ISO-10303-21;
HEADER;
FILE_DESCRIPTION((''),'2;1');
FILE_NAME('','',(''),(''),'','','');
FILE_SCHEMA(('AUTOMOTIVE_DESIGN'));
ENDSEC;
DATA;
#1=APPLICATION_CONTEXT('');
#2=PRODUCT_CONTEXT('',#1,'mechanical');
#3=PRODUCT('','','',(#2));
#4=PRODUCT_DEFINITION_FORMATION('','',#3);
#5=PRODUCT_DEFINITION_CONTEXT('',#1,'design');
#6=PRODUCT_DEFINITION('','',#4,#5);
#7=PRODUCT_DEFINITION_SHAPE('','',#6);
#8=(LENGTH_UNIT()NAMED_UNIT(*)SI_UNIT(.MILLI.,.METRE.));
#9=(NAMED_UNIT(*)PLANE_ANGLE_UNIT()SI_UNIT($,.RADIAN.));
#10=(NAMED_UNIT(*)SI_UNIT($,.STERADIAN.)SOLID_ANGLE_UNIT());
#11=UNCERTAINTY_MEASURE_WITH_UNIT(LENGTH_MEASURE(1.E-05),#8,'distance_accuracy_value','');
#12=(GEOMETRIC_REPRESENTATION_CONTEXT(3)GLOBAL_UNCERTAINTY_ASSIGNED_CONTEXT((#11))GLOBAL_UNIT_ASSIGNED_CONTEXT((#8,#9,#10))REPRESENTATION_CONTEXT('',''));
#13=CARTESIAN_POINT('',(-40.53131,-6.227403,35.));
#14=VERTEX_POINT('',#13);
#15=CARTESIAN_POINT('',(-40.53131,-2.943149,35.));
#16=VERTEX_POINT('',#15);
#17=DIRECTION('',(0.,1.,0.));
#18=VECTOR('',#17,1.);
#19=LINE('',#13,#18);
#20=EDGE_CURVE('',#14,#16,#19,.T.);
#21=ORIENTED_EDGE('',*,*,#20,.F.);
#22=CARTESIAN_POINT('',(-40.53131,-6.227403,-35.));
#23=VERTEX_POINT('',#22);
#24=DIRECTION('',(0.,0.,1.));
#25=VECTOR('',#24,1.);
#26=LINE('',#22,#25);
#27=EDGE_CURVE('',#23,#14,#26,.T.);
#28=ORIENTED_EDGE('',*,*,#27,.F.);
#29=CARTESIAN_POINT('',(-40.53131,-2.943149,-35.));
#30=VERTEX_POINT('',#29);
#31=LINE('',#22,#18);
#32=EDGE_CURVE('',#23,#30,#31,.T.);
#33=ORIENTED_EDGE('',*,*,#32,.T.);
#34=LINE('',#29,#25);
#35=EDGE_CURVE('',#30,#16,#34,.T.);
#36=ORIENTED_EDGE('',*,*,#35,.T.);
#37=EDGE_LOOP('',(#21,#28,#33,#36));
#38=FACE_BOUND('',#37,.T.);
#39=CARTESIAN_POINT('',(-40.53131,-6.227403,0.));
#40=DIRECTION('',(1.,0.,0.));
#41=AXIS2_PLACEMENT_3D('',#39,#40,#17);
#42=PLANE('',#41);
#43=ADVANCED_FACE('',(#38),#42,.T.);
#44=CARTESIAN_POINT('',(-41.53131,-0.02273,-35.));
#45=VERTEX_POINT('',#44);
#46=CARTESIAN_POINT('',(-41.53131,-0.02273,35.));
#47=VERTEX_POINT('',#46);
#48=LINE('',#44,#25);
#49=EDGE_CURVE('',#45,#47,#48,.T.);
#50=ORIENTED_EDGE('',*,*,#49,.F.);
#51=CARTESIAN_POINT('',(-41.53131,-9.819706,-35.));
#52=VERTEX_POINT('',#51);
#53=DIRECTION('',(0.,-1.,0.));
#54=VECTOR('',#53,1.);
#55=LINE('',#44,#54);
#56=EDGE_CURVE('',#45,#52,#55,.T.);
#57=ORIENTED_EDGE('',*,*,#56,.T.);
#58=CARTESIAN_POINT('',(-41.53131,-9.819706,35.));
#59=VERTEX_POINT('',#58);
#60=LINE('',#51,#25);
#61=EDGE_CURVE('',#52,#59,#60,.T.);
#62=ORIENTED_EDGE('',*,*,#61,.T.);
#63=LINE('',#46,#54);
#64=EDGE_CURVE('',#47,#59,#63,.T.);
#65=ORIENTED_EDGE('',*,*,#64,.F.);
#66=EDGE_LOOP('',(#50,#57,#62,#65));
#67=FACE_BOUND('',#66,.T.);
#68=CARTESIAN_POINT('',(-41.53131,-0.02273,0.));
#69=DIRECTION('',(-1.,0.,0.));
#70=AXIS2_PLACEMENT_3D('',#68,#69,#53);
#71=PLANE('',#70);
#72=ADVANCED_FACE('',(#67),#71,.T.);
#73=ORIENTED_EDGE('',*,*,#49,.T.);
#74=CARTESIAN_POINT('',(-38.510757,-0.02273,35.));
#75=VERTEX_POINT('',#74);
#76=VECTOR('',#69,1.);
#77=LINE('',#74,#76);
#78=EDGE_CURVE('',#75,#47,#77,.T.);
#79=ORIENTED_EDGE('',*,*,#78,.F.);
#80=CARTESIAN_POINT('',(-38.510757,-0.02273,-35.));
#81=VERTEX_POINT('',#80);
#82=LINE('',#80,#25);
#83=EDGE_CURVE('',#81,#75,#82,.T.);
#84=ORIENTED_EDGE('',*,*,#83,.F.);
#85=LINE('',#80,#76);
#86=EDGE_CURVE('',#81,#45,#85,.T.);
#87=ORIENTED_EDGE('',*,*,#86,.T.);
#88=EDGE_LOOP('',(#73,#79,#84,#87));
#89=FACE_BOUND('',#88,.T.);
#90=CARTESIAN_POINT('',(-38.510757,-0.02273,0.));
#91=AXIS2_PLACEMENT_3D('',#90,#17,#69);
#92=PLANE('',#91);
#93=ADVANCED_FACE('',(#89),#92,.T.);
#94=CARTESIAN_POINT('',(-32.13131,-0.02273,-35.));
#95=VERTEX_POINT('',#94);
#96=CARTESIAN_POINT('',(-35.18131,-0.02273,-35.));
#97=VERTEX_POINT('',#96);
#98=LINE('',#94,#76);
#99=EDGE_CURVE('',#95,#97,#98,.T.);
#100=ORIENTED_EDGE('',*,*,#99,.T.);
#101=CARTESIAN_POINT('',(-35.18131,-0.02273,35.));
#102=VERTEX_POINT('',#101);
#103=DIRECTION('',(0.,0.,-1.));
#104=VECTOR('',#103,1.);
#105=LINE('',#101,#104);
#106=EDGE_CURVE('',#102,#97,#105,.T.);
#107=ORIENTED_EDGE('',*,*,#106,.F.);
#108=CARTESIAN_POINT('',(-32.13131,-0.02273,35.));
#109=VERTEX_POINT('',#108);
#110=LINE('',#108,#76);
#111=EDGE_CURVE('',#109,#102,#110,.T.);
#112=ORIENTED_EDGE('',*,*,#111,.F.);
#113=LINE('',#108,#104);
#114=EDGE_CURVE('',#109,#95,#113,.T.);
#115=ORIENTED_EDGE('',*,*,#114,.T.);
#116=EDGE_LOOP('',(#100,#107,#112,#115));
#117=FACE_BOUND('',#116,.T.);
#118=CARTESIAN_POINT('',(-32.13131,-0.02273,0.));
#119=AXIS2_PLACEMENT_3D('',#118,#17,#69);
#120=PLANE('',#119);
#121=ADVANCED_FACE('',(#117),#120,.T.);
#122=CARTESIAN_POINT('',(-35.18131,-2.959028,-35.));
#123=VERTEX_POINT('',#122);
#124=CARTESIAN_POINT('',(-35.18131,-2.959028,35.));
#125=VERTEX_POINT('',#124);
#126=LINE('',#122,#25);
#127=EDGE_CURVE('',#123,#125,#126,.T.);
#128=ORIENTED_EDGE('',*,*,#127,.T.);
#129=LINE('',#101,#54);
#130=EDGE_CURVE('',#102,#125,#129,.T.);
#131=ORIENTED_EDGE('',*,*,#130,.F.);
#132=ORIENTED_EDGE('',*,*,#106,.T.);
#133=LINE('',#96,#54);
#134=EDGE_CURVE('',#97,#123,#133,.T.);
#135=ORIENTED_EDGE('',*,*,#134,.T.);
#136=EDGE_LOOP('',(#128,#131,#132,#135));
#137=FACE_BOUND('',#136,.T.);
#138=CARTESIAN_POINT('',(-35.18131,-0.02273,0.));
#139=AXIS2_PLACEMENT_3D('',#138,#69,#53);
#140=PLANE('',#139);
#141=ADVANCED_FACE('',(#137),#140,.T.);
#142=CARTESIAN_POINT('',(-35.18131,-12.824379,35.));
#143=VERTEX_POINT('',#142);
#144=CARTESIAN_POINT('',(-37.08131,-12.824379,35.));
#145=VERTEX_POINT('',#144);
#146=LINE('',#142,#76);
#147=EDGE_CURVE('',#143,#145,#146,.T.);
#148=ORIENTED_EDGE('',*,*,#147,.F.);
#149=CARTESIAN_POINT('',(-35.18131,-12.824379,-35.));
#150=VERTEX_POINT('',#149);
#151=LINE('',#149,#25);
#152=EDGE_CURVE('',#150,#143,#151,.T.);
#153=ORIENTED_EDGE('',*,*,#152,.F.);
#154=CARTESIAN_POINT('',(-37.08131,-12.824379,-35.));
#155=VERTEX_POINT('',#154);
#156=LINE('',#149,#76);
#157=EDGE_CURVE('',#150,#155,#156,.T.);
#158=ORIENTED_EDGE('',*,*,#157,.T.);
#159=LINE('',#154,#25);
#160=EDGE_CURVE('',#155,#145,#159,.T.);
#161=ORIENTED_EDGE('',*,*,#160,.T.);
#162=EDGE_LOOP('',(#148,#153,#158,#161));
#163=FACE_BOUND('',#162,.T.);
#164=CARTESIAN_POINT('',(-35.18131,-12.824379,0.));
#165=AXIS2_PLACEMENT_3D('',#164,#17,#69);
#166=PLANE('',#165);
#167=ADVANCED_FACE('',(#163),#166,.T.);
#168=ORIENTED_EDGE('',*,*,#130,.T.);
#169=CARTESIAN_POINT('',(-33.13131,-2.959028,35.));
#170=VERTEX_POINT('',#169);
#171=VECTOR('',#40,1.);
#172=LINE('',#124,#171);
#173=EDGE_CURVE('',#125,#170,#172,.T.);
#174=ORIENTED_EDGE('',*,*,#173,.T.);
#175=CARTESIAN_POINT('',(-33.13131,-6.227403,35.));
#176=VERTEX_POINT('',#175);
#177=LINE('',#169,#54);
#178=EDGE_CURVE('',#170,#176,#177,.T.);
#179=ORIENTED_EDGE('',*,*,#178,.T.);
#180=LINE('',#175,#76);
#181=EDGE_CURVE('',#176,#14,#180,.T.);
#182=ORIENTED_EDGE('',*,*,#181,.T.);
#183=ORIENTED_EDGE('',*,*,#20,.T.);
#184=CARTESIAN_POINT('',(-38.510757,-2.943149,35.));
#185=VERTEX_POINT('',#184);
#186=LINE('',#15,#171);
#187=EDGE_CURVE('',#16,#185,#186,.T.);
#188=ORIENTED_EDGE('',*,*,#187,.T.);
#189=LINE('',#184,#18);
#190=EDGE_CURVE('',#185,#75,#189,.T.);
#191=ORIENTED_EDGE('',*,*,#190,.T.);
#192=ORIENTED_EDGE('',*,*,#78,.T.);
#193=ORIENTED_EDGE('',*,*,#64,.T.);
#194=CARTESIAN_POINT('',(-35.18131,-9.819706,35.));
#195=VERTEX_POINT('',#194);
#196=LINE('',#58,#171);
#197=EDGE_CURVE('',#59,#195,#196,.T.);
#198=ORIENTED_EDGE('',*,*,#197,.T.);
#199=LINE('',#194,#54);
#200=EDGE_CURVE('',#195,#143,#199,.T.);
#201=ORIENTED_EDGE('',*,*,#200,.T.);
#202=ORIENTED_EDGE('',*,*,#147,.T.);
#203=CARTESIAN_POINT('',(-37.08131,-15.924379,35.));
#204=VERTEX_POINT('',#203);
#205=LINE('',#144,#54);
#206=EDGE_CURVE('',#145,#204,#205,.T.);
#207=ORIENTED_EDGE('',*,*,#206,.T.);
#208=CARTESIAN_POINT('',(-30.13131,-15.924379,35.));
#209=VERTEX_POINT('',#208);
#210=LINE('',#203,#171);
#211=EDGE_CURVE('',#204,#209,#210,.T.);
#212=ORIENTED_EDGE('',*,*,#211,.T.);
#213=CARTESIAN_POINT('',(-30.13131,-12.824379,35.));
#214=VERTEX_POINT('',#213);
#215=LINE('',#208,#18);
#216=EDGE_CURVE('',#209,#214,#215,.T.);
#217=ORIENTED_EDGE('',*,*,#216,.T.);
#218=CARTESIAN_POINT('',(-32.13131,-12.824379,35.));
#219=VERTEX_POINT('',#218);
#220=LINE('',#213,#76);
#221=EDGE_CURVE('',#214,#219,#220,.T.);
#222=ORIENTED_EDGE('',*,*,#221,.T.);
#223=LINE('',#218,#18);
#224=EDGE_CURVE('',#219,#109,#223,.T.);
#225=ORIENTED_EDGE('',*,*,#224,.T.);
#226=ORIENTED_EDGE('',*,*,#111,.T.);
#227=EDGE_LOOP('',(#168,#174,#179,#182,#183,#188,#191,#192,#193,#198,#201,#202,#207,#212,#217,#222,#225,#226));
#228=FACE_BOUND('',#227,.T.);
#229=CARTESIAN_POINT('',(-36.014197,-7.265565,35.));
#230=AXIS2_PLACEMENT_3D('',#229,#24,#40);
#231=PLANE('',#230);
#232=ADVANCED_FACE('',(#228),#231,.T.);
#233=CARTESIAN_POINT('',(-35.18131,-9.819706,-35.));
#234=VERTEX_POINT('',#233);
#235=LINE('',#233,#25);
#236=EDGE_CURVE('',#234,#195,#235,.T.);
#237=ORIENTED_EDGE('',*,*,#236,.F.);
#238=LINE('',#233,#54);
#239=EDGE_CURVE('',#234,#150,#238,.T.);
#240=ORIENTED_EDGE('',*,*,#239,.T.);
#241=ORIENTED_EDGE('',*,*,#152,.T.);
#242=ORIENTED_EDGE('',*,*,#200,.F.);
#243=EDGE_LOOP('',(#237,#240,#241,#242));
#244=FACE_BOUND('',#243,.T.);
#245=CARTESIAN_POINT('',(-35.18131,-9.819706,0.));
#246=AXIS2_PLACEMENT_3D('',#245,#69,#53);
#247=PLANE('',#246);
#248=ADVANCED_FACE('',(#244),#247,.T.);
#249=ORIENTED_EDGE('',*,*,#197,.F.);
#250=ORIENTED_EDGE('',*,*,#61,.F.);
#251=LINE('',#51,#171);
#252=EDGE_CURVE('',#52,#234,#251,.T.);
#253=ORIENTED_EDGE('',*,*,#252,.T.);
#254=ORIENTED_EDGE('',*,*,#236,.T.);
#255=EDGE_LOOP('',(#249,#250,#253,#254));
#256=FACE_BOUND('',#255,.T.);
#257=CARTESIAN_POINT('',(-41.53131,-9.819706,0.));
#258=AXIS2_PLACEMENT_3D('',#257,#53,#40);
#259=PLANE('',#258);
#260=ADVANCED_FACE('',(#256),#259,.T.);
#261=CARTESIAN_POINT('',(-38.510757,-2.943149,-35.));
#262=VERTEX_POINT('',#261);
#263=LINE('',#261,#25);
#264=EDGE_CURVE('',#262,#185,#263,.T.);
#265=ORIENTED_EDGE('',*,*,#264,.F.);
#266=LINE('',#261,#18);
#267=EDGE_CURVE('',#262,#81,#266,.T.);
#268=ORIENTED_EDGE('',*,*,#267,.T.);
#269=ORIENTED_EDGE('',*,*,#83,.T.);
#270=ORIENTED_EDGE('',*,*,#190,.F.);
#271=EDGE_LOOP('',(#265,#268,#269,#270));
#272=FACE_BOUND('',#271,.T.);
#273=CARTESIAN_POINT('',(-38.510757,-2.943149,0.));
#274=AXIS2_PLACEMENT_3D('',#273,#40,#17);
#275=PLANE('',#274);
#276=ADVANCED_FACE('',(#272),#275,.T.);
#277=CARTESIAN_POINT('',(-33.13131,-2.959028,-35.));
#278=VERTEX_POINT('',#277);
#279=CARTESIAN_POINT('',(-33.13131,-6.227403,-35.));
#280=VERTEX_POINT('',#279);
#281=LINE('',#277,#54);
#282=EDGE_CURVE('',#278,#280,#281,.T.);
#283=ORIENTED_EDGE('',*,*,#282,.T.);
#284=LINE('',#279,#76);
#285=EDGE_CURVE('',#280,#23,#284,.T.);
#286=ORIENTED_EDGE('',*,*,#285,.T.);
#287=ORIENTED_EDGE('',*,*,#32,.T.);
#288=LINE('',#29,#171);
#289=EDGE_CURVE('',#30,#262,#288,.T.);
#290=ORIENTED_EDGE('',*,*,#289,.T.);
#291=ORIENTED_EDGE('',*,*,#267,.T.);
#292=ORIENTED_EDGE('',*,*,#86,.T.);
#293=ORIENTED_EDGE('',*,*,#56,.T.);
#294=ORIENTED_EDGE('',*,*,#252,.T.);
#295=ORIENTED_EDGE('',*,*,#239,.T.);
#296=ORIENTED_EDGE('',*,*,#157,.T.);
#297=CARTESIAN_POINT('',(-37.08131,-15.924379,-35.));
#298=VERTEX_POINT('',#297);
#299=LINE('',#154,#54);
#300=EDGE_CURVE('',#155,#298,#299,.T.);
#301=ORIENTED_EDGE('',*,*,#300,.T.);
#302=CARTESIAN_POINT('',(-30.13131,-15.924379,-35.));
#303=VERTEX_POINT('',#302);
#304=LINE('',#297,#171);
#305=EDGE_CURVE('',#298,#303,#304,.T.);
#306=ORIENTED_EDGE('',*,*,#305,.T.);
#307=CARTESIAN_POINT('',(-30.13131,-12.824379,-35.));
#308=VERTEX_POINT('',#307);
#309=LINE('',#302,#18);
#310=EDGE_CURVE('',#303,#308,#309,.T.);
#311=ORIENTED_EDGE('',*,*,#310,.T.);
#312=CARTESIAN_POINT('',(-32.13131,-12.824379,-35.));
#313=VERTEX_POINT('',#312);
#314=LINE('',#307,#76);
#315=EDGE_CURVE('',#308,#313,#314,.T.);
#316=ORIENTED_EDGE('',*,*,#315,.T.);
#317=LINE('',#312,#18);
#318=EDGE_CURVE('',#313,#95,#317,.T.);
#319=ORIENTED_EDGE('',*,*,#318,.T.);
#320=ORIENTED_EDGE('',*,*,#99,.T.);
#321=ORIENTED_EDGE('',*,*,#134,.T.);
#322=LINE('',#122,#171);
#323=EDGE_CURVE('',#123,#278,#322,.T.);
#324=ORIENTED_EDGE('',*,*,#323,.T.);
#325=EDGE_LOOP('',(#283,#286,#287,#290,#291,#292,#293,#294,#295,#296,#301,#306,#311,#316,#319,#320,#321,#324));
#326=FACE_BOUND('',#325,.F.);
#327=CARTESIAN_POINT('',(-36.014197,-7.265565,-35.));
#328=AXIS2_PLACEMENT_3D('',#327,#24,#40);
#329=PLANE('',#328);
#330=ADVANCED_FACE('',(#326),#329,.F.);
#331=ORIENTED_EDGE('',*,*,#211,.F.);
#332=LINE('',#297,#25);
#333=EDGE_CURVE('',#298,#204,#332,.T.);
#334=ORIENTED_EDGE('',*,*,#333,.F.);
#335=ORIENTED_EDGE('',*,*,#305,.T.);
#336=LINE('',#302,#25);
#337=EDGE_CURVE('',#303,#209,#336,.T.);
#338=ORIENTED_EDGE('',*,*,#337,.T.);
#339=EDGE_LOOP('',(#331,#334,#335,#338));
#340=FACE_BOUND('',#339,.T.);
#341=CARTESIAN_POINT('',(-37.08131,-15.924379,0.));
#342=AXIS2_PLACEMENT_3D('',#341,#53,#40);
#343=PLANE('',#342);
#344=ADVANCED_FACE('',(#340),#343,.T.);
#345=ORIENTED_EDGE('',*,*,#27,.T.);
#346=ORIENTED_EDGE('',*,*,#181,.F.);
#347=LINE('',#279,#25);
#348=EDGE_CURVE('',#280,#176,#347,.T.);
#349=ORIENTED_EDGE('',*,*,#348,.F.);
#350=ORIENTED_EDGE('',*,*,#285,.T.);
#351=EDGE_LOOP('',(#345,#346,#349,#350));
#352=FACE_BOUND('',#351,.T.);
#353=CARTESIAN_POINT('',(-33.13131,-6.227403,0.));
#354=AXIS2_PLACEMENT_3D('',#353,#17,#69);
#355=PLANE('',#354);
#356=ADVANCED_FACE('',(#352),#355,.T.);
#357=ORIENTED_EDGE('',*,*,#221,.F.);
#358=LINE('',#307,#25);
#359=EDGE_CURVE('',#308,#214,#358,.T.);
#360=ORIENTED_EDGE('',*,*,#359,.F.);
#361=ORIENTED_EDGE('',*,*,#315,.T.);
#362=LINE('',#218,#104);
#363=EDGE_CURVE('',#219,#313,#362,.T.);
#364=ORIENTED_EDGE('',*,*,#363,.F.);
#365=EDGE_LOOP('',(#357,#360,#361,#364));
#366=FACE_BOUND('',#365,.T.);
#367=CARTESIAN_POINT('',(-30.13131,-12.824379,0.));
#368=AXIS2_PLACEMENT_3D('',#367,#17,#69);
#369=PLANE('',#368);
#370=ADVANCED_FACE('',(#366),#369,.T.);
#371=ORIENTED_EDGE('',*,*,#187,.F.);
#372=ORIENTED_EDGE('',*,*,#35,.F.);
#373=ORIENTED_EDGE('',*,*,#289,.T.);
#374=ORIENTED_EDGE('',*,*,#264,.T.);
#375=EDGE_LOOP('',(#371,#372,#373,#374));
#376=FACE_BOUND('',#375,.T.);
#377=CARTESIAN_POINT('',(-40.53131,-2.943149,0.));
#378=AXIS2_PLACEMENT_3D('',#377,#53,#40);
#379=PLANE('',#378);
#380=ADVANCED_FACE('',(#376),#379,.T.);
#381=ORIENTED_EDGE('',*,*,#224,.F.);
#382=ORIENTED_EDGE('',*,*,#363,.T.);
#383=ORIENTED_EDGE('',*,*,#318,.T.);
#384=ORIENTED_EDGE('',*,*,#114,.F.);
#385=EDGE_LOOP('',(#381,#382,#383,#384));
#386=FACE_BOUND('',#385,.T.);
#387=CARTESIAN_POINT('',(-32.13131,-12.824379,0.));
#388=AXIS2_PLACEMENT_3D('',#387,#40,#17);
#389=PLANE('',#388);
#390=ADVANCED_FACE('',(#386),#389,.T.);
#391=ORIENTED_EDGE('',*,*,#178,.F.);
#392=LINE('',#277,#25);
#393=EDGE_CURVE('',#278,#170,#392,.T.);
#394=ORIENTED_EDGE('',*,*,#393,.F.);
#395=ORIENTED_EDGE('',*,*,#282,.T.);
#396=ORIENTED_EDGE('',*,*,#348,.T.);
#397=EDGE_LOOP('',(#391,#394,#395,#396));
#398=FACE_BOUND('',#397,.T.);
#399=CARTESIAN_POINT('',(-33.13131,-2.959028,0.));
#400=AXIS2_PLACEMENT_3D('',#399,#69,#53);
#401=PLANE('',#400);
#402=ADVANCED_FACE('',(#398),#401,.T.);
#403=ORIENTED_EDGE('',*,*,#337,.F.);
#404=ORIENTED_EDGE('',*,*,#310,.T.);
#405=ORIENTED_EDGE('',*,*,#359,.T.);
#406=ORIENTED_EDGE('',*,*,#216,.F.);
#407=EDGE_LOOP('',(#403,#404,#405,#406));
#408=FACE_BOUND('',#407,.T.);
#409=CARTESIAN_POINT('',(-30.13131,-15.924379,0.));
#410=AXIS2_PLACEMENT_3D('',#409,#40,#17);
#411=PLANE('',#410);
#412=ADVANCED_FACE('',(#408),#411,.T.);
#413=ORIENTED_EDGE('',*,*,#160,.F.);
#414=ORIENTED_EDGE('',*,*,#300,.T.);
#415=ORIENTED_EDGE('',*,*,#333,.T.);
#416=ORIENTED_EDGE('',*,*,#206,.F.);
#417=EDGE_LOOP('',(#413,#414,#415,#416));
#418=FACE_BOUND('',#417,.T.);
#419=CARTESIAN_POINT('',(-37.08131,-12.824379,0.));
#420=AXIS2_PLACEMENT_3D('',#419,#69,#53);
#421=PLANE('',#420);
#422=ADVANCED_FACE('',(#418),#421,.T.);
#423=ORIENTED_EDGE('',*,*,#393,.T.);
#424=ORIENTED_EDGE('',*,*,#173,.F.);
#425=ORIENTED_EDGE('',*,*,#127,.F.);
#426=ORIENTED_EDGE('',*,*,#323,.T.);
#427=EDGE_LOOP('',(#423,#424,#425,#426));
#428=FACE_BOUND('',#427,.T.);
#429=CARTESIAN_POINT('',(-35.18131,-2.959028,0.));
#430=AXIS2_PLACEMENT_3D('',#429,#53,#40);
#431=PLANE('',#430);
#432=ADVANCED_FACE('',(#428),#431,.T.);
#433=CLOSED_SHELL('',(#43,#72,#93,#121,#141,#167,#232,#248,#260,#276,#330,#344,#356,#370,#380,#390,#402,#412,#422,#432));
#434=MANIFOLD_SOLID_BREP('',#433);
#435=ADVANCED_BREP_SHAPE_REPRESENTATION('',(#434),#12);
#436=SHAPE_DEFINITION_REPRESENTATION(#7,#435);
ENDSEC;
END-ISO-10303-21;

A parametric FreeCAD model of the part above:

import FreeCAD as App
import Part
import Sketcher


def add_polygon(sketch, points):
    """Adds a closed chain of lines whose ends are joined by coincident constraints."""
    first, n = sketch.GeometryCount, len(points)
    for a, b in zip(points, points[1:] + points[:1]):
        sketch.addGeometry(Part.LineSegment(App.Vector(*a, 0), App.Vector(*b, 0)), False)
    for i in range(n):
        sketch.addConstraint(Sketcher.Constraint("Coincident", first + i, 2, first + (i + 1) % n, 1))

doc = App.newDocument("Part")
body = doc.addObject("PartDesign::Body", "Body")

# Sketch on XY plane
sketch1 = body.newObject("Sketcher::SketchObject", "Sketch")
sketch1.AttachmentSupport = (doc.getObject("XY_Plane"), [""])
sketch1.MapMode = "FlatFace"
add_polygon(sketch1, [(-35.2, 0), (-35.2, -3), (-33.1, -3), (-33.1, -6.2), (-40.5, -6.2), (-40.5, -2.9), (-38.5, -2.9), (-38.5, 0), (-41.5, 0), (-41.5, -9.8), (-35.2, -9.8), (-35.2, -12.8), (-37.1, -12.8), (-37.1, -15.9), (-30.1, -15.9), (-30.1, -12.8), (-32.1, -12.8), (-32.1, 0)])  # lines 0-17
sketch1.addConstraint([
    Sketcher.Constraint("Vertical", 0),
    Sketcher.Constraint("Horizontal", 1),
    Sketcher.Constraint("Vertical", 2),
    Sketcher.Constraint("Horizontal", 3),
    Sketcher.Constraint("Vertical", 4),
    Sketcher.Constraint("Horizontal", 5),
    Sketcher.Constraint("Vertical", 6),
    Sketcher.Constraint("Horizontal", 7),
    Sketcher.Constraint("Vertical", 8),
    Sketcher.Constraint("Horizontal", 9),
    Sketcher.Constraint("Vertical", 10),
    Sketcher.Constraint("Horizontal", 11),
    Sketcher.Constraint("Vertical", 12),
    Sketcher.Constraint("Horizontal", 13),
    Sketcher.Constraint("Vertical", 14),
    Sketcher.Constraint("Horizontal", 15),
    Sketcher.Constraint("Vertical", 16),
    Sketcher.Constraint("Horizontal", 17),
    Sketcher.Constraint("Horizontal", 11, 2, 14, 2),
    Sketcher.Constraint("Horizontal", 7, 2, 16, 2),
    Sketcher.Constraint("Vertical", 0, 2, 9, 2),
    Sketcher.Constraint("DistanceX", 15, 2, 15, 1, 2.0),
    Sketcher.Constraint("DistanceX", 3, 2, 3, 1, 7.4),
    Sketcher.Constraint("DistanceX", 11, 2, 11, 1, 1.9),
    Sketcher.Constraint("DistanceY", 12, 2, 12, 1, 3.1),
    Sketcher.Constraint("DistanceX", 7, 2, 4, 2, 1.0),
    Sketcher.Constraint("DistanceX", 2, 2, 13, 2, 3.0),
    Sketcher.Constraint("DistanceX", 1, 1, 1, 2, 2.05),
    Sketcher.Constraint("DistanceY", 6, 1, 6, 2, 2.920419),
    Sketcher.Constraint("DistanceY", 16, 1, 16, 2, 12.801649),
    Sketcher.Constraint("DistanceX", 5, 1, 5, 2, 2.020553),
    Sketcher.Constraint("DistanceY", 0, 2, 0, 1, 2.936298),
    Sketcher.Constraint("DistanceY", 2, 2, 2, 1, 3.268375),
    Sketcher.Constraint("DistanceY", 8, 2, 8, 1, 9.796976),
    Sketcher.Constraint("DistanceX", 0, 2, -1, 1, 35.18131),
    Sketcher.Constraint("DistanceY", 0, 2, -1, 1, 2.959028),
])
pad1 = body.newObject("PartDesign::Pad", "Pad")
pad1.Profile = sketch1
pad1.Length = 70
pad1.Midplane = True

doc.recompute()
